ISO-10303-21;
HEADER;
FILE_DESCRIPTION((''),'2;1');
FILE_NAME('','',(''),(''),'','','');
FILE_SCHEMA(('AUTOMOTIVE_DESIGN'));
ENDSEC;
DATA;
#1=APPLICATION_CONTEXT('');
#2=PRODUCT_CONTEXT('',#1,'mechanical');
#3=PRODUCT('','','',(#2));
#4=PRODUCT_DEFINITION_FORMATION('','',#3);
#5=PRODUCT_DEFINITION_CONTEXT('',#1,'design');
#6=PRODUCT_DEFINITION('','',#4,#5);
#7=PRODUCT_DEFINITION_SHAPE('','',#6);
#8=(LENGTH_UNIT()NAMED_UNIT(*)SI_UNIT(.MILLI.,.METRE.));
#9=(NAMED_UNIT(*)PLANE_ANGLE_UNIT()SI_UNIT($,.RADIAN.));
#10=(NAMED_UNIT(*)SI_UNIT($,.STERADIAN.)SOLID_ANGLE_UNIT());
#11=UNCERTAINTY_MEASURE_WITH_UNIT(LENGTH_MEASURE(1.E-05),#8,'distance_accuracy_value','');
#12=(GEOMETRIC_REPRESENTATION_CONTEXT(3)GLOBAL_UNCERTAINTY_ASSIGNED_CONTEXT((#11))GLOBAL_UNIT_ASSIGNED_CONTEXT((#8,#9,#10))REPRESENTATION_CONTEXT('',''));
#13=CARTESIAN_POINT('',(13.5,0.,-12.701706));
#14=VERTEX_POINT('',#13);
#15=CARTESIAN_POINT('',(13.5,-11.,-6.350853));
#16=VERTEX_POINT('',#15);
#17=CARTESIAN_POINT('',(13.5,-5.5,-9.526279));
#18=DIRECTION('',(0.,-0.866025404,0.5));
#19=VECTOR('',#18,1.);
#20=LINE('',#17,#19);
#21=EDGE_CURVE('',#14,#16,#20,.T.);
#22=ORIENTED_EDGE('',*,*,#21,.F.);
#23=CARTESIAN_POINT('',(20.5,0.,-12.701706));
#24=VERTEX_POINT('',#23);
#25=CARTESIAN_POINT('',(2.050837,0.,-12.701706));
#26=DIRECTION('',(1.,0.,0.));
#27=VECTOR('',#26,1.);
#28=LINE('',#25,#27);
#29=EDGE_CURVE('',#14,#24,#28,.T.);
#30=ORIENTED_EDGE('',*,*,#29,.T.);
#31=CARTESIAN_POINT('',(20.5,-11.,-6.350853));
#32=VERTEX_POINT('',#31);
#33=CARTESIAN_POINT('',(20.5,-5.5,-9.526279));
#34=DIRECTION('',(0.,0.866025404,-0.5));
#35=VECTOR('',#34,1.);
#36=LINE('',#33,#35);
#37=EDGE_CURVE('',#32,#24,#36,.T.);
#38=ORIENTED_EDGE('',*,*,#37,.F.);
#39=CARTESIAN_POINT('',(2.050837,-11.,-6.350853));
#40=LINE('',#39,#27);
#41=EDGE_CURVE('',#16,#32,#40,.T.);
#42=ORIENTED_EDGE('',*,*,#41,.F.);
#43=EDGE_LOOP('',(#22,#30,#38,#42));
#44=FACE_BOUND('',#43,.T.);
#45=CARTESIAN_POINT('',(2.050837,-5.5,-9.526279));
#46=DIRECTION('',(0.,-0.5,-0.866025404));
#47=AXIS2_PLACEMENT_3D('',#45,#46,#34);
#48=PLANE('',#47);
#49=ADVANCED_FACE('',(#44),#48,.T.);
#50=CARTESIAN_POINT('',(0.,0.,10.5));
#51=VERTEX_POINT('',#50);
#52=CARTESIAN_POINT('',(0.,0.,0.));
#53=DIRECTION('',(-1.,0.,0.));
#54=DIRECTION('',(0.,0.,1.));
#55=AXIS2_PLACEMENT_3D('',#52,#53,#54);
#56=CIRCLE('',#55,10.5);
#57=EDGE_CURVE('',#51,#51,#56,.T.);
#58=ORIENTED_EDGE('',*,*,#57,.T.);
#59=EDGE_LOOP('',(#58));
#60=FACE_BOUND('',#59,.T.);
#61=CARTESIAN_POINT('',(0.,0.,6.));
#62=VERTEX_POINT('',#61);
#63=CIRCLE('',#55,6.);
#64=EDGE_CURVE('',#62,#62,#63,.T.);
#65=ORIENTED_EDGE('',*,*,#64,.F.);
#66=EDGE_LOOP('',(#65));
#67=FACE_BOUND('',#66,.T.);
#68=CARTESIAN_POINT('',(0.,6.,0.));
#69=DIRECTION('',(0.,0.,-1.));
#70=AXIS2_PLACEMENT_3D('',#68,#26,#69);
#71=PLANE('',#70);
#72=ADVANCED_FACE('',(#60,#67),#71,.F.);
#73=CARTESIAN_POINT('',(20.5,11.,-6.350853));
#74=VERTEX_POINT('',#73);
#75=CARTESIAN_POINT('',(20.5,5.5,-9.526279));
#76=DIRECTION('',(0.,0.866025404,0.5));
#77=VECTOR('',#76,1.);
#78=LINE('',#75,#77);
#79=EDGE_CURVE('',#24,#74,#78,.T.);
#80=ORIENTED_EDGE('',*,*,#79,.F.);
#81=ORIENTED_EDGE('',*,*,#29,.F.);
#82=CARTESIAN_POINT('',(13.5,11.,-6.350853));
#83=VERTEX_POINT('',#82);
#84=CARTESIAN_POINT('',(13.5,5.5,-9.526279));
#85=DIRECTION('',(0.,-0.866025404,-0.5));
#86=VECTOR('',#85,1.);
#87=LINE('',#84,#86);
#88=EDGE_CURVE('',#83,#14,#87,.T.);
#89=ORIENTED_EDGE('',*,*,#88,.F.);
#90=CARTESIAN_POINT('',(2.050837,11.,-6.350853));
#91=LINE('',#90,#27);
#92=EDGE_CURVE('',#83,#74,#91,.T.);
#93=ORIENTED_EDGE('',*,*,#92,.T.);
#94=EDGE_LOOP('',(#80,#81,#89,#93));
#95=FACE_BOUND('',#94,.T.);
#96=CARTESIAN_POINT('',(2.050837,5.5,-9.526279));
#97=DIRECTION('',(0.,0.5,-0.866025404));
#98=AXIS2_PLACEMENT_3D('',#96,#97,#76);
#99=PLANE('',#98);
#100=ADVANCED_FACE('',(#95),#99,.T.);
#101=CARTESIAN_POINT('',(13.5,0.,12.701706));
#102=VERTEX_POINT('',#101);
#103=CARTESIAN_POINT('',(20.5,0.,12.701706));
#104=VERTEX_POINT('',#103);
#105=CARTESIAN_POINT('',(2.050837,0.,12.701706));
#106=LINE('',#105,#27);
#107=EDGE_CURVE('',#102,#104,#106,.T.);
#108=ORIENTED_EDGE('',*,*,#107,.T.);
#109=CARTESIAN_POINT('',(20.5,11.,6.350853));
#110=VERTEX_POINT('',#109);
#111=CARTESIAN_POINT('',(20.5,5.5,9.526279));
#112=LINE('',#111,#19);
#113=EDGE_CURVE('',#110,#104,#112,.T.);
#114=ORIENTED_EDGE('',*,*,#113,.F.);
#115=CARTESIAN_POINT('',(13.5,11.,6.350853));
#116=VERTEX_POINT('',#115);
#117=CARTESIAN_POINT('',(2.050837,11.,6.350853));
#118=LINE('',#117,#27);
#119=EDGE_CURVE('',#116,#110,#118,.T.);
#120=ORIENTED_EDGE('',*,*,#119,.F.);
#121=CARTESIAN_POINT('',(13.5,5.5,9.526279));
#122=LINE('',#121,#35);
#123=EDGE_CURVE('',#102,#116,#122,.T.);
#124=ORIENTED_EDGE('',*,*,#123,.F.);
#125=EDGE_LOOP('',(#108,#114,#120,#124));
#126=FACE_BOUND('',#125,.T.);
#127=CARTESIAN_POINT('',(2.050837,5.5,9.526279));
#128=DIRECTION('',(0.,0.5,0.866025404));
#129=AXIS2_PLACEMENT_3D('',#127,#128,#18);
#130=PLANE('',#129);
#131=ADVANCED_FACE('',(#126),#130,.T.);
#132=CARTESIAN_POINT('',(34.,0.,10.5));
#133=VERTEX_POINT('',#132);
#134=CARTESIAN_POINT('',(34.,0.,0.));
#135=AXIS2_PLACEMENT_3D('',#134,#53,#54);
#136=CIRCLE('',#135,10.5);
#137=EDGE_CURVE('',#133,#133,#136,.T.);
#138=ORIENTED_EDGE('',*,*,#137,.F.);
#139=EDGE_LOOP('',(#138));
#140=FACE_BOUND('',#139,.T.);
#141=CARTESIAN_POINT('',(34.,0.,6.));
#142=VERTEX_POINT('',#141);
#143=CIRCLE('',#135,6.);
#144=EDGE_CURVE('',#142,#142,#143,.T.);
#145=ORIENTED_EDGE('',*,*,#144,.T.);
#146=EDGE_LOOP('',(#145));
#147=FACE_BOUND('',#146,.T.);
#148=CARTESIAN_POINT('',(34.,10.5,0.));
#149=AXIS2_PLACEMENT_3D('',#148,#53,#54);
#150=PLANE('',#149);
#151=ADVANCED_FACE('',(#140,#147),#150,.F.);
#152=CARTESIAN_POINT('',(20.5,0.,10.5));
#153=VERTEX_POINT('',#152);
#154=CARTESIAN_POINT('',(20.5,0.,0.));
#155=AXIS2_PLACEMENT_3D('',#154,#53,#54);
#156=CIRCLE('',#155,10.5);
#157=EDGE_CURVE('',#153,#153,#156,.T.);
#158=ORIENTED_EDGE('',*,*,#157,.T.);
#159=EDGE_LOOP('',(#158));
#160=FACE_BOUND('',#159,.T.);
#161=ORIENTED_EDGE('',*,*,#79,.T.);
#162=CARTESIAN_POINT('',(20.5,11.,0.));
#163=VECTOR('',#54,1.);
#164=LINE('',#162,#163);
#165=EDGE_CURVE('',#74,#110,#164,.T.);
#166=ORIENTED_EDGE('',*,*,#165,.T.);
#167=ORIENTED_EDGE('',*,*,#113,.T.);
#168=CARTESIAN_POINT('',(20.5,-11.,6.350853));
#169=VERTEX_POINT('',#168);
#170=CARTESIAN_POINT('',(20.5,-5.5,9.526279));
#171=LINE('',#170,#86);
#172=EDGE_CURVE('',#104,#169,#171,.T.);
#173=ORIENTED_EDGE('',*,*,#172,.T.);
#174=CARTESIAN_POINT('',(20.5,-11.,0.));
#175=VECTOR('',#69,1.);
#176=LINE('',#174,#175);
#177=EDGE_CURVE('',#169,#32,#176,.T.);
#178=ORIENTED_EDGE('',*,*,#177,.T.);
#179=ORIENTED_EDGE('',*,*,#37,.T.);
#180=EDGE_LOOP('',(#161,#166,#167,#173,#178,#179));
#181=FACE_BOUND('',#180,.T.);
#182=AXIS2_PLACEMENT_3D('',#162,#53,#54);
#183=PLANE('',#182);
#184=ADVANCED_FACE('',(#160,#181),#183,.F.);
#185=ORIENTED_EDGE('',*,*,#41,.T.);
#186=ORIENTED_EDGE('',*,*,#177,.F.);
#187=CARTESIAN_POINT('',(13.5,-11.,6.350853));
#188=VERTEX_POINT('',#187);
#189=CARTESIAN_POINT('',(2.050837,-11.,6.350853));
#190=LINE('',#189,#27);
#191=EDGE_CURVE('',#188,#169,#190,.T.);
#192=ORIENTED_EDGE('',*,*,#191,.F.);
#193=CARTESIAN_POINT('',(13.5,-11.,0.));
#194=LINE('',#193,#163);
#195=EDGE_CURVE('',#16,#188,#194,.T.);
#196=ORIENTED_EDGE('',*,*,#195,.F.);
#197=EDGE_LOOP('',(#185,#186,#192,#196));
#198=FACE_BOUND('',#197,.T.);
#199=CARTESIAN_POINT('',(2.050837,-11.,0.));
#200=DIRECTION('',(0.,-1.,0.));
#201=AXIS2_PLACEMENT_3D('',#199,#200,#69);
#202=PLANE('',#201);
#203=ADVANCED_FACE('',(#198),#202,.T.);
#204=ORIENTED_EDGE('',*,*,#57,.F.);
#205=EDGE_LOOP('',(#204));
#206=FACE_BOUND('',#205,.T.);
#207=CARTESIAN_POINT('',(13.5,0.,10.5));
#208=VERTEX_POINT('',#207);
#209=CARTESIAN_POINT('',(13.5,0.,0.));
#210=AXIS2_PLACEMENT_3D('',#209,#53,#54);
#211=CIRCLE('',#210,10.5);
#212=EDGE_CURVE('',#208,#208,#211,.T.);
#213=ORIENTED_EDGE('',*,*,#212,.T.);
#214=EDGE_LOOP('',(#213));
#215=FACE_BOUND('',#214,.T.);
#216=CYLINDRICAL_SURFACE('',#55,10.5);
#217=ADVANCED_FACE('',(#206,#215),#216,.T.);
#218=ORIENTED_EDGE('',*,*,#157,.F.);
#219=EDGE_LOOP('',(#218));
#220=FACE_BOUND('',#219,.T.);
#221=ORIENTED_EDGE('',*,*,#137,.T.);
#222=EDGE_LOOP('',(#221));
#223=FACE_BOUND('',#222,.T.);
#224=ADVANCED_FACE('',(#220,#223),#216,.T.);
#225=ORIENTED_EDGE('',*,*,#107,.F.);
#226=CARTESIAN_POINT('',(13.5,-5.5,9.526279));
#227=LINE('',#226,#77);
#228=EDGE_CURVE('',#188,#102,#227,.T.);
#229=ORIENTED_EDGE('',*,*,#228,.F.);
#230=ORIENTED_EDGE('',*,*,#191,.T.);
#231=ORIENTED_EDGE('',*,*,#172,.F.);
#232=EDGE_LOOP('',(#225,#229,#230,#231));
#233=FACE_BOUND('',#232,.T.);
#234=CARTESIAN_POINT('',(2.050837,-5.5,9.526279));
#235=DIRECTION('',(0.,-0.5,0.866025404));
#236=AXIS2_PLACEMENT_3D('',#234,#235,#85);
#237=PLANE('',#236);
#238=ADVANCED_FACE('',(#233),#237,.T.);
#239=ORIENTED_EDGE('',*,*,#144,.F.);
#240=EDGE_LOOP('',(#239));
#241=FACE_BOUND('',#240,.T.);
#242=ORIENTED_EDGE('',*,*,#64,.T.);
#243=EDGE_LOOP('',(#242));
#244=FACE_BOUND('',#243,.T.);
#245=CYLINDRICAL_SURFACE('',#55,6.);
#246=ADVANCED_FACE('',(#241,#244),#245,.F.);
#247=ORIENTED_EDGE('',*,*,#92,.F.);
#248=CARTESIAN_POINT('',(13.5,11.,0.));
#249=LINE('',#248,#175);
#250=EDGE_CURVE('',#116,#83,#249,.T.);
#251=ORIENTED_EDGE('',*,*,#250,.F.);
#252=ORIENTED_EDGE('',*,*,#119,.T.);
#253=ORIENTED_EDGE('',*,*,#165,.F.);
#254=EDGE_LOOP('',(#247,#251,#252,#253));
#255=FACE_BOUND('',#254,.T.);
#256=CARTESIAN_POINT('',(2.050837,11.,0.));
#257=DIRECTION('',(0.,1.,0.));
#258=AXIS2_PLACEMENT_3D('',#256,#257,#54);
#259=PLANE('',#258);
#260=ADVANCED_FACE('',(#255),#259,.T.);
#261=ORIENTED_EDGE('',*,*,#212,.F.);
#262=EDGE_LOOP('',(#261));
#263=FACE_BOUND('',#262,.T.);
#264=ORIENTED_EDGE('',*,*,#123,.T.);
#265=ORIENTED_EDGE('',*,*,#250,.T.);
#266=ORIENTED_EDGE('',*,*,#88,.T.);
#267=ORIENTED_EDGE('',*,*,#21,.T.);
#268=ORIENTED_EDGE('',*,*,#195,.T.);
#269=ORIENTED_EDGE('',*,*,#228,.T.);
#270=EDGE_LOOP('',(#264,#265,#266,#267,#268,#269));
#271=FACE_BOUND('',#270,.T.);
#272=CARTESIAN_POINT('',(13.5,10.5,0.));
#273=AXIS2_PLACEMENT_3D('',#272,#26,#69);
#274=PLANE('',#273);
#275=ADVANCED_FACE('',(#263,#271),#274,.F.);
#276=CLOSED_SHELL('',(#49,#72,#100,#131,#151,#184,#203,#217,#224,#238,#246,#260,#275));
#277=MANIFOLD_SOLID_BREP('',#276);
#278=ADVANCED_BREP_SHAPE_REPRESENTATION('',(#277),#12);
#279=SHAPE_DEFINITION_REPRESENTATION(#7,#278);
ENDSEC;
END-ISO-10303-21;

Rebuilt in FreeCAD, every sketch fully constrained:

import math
import FreeCAD as App
import Part
import Sketcher

V = App.Vector

doc = App.newDocument("Part")
body = doc.addObject("PartDesign::Body", "Body")

# Sketch on XY plane
sketch1 = doc.addObject("Sketcher::SketchObject", "Sketch")
body.addObject(sketch1)
sketch1.AttachmentSupport = (doc.XY_Plane, [""])
sketch1.MapMode = "FlatFace"
sketch1.addGeometry([
    Part.LineSegment(V(0, 10.5, 0), V(0, 6, 0)),  # 0
    Part.LineSegment(V(0, 6, 0), V(34, 6, 0)),  # 1
    Part.LineSegment(V(34, 6, 0), V(34, 10.5, 0)),  # 2
    Part.LineSegment(V(34, 10.5, 0), V(20.5, 10.5, 0)),  # 3
    Part.LineSegment(V(20.5, 10.5, 0), V(20.5, 11, 0)),  # 4
    Part.LineSegment(V(20.5, 11, 0), V(13.5, 11, 0)),  # 5
    Part.LineSegment(V(13.5, 11, 0), V(13.5, 10.5, 0)),  # 6
    Part.LineSegment(V(13.5, 10.5, 0), V(0, 10.5, 0)),  # 7
], False)
sketch1.addConstraint([
    Sketcher.Constraint("Coincident", 0, 2, 1, 1),
    Sketcher.Constraint("Coincident", 1, 2, 2, 1),
    Sketcher.Constraint("Coincident", 2, 2, 3, 1),
    Sketcher.Constraint("Coincident", 3, 2, 4, 1),
    Sketcher.Constraint("Coincident", 4, 2, 5, 1),
    Sketcher.Constraint("Coincident", 5, 2, 6, 1),
    Sketcher.Constraint("Coincident", 6, 2, 7, 1),
    Sketcher.Constraint("Coincident", 7, 2, 0, 1),
    Sketcher.Constraint("Vertical", 0),
    Sketcher.Constraint("Horizontal", 1),
    Sketcher.Constraint("Vertical", 2),
    Sketcher.Constraint("Horizontal", 3),
    Sketcher.Constraint("Vertical", 4),
    Sketcher.Constraint("Horizontal", 5),
    Sketcher.Constraint("Vertical", 6),
    Sketcher.Constraint("Horizontal", 7),
    Sketcher.Constraint("PointOnObject", 0, 2, -2),
    Sketcher.Constraint("Horizontal", 3, 2, 6, 2),
    Sketcher.Constraint("Equal", 3, 7),
    Sketcher.Constraint("DistanceX", 1, 1, 1, 2, 34.0),
    Sketcher.Constraint("DistanceX", 5, 2, 5, 1, 7.0),
    Sketcher.Constraint("DistanceY", 0, 2, 0, 1, 4.5),
    Sketcher.Constraint("DistanceY", 4, 1, 4, 2, 0.5),
    Sketcher.Constraint("DistanceY", -1, 1, 0, 2, 6.0),
])
revolution = doc.addObject("PartDesign::Revolution", "Revolution")
body.addObject(revolution)
revolution.Profile = sketch1
revolution.ReferenceAxis = (sketch1, ["H_Axis"])
revolution.Angle = 360

# Sketch on YZ plane
sketch2 = doc.addObject("Sketcher::SketchObject", "Sketch001")
body.addObject(sketch2)
sketch2.AttachmentSupport = (doc.YZ_Plane, [""])
sketch2.MapMode = "FlatFace"
sketch2.AttachmentOffset = App.Placement(V(0, 0, 20.5), App.Rotation())
sketch2.addGeometry([
    Part.LineSegment(V(5.5, 9.526279, 0), V(0, 12.701706, 0)),  # 0
    Part.LineSegment(V(0, 12.701706, 0), V(-5.5, 9.526279, 0)),  # 1
    Part.ArcOfCircle(Part.Circle(V(0, 0, 0), V(0, 0, 1), 11), math.radians(59.999998), math.radians(120.000003)),  # 2
    Part.LineSegment(V(11, 6.350853, 0), V(5.5, 9.526279, 0)),  # 3
    Part.ArcOfCircle(Part.Circle(V(0, 0, 0), V(0, 0, 1), 11), math.radians(0), math.radians(59.999998)),  # 4
    Part.LineSegment(V(11, 0, 0), V(11, 6.350853, 0)),  # 5
    Part.LineSegment(V(11, -6.350853, 0), V(11, 0, 0)),  # 6
    Part.ArcOfCircle(Part.Circle(V(0, 0, 0), V(0, 0, 1), 11), math.radians(-59.999996), math.radians(0)),  # 7
    Part.LineSegment(V(5.500001, -9.526279, 0), V(11, -6.350853, 0)),  # 8
    Part.ArcOfCircle(Part.Circle(V(0, 0, 0), V(0, 0, 1), 11), math.radians(120.000003), math.radians(180)),  # 9
    Part.LineSegment(V(-5.5, 9.526279, 0), V(-11, 6.350853, 0)),  # 10
    Part.LineSegment(V(-11, 6.350853, 0), V(-11, 0, 0)),  # 11
    Part.ArcOfCircle(Part.Circle(V(0, 0, 0), V(0, 0, 1), 11), math.radians(180), math.radians(239.999997)),  # 12
    Part.LineSegment(V(-11, 0, 0), V(-11, -6.350853, 0)),  # 13
    Part.LineSegment(V(-11, -6.350853, 0), V(-5.5, -9.526279, 0)),  # 14
    Part.ArcOfCircle(Part.Circle(V(0, 0, 0), V(0, 0, 1), 11), math.radians(-120.000003), math.radians(-90)),  # 15
    Part.LineSegment(V(-5.5, -9.526279, 0), V(0, -12.701706, 0)),  # 16
    Part.LineSegment(V(0, -12.701706, 0), V(5.500001, -9.526279, 0)),  # 17
    Part.ArcOfCircle(Part.Circle(V(0, 0, 0), V(0, 0, 1), 11), math.radians(-90), math.radians(-59.999996)),  # 18
], False)
sketch2.addConstraint([
    Sketcher.Constraint("Coincident", 0, 2, 1, 1),
    Sketcher.Constraint("Tangent", 1, 2, 2, 2),
    Sketcher.Constraint("Tangent", 2, 1, 0, 1),
    Sketcher.Constraint("Tangent", 3, 2, 4, 2),
    Sketcher.Constraint("Tangent", 4, 1, 5, 1),
    Sketcher.Constraint("Coincident", 5, 2, 3, 1),
    Sketcher.Constraint("Tangent", 6, 2, 7, 2),
    Sketcher.Constraint("Tangent", 7, 1, 8, 1),
    Sketcher.Constraint("Coincident", 8, 2, 6, 1),
    Sketcher.Constraint("Tangent", 9, 1, 10, 1),
    Sketcher.Constraint("Coincident", 10, 2, 11, 1),
    Sketcher.Constraint("Tangent", 11, 2, 9, 2),
    Sketcher.Constraint("Tangent", 12, 1, 13, 1),
    Sketcher.Constraint("Coincident", 13, 2, 14, 1),
    Sketcher.Constraint("Tangent", 14, 2, 12, 2),
    Sketcher.Constraint("Tangent", 15, 1, 16, 1),
    Sketcher.Constraint("Coincident", 16, 2, 17, 1),
    Sketcher.Constraint("Tangent", 17, 2, 18, 2),
    Sketcher.Constraint("Tangent", 18, 1, 15, 2),
    Sketcher.Constraint("Vertical", 5),
    Sketcher.Constraint("Vertical", 6),
    Sketcher.Constraint("Vertical", 11),
    Sketcher.Constraint("Vertical", 13),
    Sketcher.Constraint("Coincident", 2, 3, -1, 1),
    Sketcher.Constraint("Coincident", 4, 3, -1, 1),
    Sketcher.Constraint("Coincident", 7, 3, -1, 1),
    Sketcher.Constraint("Coincident", 9, 3, -1, 1),
    Sketcher.Constraint("Coincident", 12, 3, -1, 1),
    Sketcher.Constraint("Coincident", 15, 3, -1, 1),
    Sketcher.Constraint("Coincident", 3, 2, 2, 1),
    Sketcher.Constraint("Coincident", 9, 1, 1, 2),
    Sketcher.Constraint("Coincident", 15, 1, 14, 2),
    Sketcher.Constraint("Coincident", 17, 2, 7, 1),
    Sketcher.Constraint("Equal", 4, 7),
    Sketcher.Constraint("Equal", 9, 12),
    Sketcher.Constraint("Symmetric", 0, 2, 16, 2, -1, 1),
    Sketcher.Constraint("PointOnObject", 0, 2, -2),
    Sketcher.Constraint("PointOnObject", 18, 1, -2),
    Sketcher.Constraint("Equal", 1, 3),
    Sketcher.Constraint("Radius", 2, 11.0),
])
pad1 = doc.addObject("PartDesign::Pad", "Pad")
body.addObject(pad1)
pad1.Profile = sketch2
pad1.Length = 7
pad1.Reversed = True

doc.recompute()
